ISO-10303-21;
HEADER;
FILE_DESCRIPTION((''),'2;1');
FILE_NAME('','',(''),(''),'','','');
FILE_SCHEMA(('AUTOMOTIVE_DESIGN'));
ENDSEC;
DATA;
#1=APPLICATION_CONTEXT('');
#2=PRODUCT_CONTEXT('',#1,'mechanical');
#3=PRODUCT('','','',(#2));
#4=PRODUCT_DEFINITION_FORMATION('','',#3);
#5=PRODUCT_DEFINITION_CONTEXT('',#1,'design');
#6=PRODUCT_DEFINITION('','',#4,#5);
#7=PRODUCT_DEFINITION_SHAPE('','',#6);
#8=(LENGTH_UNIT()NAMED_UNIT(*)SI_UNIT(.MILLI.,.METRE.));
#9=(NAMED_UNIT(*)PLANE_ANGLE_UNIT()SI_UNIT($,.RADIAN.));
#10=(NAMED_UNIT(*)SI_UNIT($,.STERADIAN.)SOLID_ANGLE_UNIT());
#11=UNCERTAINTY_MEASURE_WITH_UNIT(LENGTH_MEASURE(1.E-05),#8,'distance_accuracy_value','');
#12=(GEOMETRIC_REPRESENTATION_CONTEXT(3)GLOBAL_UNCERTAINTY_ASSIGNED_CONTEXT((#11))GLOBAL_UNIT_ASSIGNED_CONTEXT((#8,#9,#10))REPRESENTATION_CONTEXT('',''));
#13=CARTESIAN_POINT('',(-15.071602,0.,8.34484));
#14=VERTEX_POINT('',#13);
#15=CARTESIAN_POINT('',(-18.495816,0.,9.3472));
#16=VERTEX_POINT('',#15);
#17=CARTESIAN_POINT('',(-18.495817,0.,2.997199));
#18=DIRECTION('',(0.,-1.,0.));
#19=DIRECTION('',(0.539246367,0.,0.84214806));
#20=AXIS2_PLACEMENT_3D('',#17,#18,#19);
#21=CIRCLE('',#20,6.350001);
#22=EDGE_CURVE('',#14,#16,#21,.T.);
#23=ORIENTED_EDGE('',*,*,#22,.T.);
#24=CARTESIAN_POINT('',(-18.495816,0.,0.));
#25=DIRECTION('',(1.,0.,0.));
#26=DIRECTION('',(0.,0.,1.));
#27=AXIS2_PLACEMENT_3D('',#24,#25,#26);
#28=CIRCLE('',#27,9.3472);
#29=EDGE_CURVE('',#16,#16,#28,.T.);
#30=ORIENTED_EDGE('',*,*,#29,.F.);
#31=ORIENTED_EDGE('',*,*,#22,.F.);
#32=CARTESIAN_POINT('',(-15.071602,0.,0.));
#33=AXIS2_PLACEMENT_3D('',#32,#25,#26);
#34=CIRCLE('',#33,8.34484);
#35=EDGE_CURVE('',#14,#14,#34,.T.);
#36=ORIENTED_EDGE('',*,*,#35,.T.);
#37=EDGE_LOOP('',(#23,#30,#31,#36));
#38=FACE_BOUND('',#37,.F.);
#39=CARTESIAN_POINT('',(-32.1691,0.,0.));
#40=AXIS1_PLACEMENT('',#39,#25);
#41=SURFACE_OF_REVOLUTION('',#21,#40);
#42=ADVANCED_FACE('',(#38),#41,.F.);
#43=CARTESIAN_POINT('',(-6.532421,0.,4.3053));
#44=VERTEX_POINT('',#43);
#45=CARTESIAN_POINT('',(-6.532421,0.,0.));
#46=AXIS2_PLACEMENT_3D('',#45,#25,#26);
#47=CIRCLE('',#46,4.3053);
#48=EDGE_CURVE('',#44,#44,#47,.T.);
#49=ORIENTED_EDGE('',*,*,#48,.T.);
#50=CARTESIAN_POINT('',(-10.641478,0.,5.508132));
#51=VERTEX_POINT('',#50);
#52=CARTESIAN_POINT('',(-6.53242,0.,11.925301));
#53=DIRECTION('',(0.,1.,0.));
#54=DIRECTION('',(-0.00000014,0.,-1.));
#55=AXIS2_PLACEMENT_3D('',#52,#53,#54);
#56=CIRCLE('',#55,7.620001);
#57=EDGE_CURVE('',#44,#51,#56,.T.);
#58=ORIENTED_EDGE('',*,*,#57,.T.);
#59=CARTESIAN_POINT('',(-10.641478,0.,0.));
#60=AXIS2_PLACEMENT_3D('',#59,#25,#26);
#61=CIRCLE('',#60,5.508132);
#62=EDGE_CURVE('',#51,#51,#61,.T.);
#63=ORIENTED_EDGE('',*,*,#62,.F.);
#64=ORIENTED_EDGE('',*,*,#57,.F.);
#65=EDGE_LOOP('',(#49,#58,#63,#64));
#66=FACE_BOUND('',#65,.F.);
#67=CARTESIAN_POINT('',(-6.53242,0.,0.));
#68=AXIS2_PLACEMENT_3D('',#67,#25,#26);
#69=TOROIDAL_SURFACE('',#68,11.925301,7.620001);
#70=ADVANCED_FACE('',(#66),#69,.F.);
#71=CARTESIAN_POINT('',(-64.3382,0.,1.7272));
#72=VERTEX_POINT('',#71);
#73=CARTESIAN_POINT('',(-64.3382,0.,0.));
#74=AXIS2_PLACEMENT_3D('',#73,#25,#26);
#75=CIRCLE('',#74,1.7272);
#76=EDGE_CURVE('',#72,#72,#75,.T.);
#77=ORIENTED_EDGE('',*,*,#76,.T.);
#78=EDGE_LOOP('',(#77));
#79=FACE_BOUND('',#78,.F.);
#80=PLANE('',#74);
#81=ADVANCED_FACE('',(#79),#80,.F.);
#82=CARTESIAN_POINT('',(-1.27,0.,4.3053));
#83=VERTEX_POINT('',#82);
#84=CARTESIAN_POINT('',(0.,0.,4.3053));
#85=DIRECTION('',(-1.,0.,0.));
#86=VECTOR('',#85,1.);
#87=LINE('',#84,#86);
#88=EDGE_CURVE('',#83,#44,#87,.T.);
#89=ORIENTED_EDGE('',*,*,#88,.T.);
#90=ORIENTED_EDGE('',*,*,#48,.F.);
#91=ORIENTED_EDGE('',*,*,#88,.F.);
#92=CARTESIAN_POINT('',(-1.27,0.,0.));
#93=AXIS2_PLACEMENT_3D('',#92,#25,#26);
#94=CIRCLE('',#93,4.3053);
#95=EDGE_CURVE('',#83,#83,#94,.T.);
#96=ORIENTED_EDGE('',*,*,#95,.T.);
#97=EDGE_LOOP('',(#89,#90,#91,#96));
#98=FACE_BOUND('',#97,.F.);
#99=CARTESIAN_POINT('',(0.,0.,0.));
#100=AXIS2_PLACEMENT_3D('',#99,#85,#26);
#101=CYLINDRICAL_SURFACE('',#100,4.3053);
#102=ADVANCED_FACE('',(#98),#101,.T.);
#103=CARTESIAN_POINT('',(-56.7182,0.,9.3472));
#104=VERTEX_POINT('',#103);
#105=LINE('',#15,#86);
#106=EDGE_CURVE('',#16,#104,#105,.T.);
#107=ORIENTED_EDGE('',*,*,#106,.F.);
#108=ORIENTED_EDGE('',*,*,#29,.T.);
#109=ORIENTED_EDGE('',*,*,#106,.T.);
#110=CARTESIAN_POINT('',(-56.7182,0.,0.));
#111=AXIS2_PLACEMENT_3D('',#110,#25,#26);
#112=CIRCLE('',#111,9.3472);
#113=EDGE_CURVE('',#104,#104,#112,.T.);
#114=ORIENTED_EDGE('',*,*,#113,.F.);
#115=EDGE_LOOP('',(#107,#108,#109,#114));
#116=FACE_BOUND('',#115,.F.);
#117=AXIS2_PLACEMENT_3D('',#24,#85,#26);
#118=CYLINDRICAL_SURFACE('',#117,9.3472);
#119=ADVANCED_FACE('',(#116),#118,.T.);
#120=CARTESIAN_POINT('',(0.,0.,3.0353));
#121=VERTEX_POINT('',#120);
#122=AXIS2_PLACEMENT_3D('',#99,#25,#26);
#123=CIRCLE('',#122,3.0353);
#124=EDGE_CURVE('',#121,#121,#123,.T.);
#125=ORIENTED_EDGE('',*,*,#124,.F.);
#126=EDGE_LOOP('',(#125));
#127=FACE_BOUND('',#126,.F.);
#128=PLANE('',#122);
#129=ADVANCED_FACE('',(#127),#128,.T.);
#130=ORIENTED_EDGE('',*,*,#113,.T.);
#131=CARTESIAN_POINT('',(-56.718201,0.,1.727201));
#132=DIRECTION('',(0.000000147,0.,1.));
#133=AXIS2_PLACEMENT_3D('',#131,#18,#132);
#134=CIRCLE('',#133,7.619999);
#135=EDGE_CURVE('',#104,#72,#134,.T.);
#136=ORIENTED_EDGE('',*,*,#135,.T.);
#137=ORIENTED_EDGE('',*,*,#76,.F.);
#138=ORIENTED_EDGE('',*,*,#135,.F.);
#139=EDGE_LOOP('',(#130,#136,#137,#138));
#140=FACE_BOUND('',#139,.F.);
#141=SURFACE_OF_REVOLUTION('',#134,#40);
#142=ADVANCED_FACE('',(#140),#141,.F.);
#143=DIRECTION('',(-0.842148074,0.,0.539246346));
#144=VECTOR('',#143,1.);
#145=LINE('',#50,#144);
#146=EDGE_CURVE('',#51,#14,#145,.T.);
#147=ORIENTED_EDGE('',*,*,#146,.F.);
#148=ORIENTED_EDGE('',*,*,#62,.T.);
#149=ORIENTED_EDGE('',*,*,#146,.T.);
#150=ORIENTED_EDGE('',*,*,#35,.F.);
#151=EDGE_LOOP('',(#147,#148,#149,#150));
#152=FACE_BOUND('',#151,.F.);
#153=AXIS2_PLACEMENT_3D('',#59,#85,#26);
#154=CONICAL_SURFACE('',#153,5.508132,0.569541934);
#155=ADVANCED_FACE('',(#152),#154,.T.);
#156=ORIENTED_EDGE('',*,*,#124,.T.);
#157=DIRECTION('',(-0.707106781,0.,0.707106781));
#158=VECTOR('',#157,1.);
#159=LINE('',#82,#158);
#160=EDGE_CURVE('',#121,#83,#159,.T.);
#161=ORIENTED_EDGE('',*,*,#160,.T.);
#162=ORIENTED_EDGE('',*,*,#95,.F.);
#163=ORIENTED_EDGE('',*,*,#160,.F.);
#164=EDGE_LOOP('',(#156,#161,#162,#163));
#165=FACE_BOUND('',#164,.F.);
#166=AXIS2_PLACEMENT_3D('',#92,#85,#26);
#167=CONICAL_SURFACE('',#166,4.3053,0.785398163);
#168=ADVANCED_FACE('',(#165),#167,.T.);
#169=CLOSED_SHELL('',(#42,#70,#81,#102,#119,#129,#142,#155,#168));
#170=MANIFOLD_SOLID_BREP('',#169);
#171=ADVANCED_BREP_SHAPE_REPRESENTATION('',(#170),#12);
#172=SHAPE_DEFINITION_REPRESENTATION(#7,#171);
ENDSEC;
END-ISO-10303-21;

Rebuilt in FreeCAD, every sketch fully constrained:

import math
import FreeCAD as App
import Part
import Sketcher

V = App.Vector
Q = App.Units.Quantity


def edges_at(feature, points):
    """Names of the edges that pass closest to the given points."""
    edges = feature.Shape.Edges
    near = lambda p: min(range(len(edges)), key=lambda i: edges[i].distToShape(Part.Vertex(*p))[0])
    return sorted({f"Edge{near(p) + 1}" for p in points})

doc = App.newDocument("Part")
body = doc.addObject("PartDesign::Body", "Body")

# Sketch on XZ plane
sketch1 = doc.addObject("Sketcher::SketchObject", "Sketch")
body.addObject(sketch1)
sketch1.AttachmentSupport = (doc.XZ_Plane, [""])
sketch1.MapMode = "FlatFace"
sketch1.addGeometry([
    Part.LineSegment(V(-64.3, 0, 0), V(0, 0, 0)),  # 0
    Part.LineSegment(V(0, 0, 0), V(0, 4.3, 0)),  # 1
    Part.LineSegment(V(0, 4.3, 0), V(-6.5, 4.3, 0)),  # 2
    Part.ArcOfCircle(Part.Circle(V(-6.5, 11.9, 0), V(0, 0, 1), 7.6), math.radians(-123), math.radians(-90)),  # 3
    Part.LineSegment(V(-10.6, 5.5, 0), V(-15.1, 8.3, 0)),  # 4
    Part.ArcOfCircle(Part.Circle(V(-18.5, 3, 0), V(0, 0, 1), 6.4), math.radians(57), math.radians(90)),  # 5
    Part.LineSegment(V(-18.5, 9.3, 0), V(-56.7, 9.3, 0)),  # 6
    Part.ArcOfCircle(Part.Circle(V(-56.7, 1.7, 0), V(0, 0, 1), 7.6), math.radians(90), math.radians(180)),  # 7
    Part.LineSegment(V(-64.3, 1.7, 0), V(-64.3, 0, 0)),  # 8
], False)
sketch1.addConstraint([
    Sketcher.Constraint("Coincident", 0, 2, 1, 1),
    Sketcher.Constraint("Coincident", 1, 2, 2, 1),
    Sketcher.Constraint("Tangent", 2, 2, 3, 2),
    Sketcher.Constraint("Tangent", 3, 1, 4, 1),
    Sketcher.Constraint("Tangent", 4, 2, 5, 1),
    Sketcher.Constraint("Tangent", 5, 2, 6, 1),
    Sketcher.Constraint("Tangent", 6, 2, 7, 1),
    Sketcher.Constraint("Tangent", 7, 2, 8, 1),
    Sketcher.Constraint("Coincident", 8, 2, 0, 1),
    Sketcher.Constraint("Horizontal", 0),
    Sketcher.Constraint("Vertical", 1),
    Sketcher.Constraint("Horizontal", 2),
    Sketcher.Constraint("Horizontal", 6),
    Sketcher.Constraint("Vertical", 8),
    Sketcher.Constraint("Coincident", 0, 2, -1, 1),
    Sketcher.Constraint("Radius", 3, Q("0.3000001 in")),
    Sketcher.Constraint("Radius", 7, Q("0.3 in")),
    Sketcher.Constraint("Radius", 5, Q("0.25 in")),
    Sketcher.Constraint("DistanceX", 0, 1, 0, 2, Q("2.533 in")),
    Sketcher.Constraint("DistanceY", 8, 2, 8, 1, Q("0.068 in")),
    Sketcher.Constraint("DistanceY", 1, 1, 1, 2, Q("0.1695 in")),
    Sketcher.Constraint("DistanceX", 5, 3, 3, 3, Q("0.4709999 in")),
    Sketcher.Constraint("DistanceX", 2, 2, 2, 1, 6.532421),
])
revolution = doc.addObject("PartDesign::Revolution", "Revolution")
body.addObject(revolution)
revolution.Profile = sketch1
revolution.ReferenceAxis = (sketch1, ["H_Axis"])
revolution.Angle = 360
doc.recompute()

chamfer = doc.addObject("PartDesign::Chamfer", "Chamfer")
body.addObject(chamfer)
chamfer.Base = (revolution, edges_at(revolution, [(0, 0, -4.305)]))
chamfer.Size = Q("0.05 in")

doc.recompute()
